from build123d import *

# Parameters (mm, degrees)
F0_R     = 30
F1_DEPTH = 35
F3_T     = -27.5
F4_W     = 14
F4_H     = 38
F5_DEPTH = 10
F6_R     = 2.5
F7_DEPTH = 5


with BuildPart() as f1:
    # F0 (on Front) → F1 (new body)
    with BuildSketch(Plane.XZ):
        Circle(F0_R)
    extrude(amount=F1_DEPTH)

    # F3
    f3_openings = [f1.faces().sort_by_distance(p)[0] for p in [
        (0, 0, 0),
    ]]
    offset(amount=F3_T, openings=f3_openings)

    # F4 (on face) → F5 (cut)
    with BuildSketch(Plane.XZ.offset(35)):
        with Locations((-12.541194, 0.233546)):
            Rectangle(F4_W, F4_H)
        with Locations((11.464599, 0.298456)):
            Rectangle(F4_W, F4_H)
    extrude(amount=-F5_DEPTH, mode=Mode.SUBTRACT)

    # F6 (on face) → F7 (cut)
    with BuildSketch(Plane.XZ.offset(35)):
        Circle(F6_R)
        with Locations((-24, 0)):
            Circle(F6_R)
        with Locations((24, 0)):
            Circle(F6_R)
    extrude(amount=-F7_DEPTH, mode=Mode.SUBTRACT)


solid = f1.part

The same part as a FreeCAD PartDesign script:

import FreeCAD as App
import Part
import Sketcher

V = App.Vector
Q = App.Units.Quantity


def faces_at(feature, points):
    """Names of the faces that lie closest to the given points."""
    faces = feature.Shape.Faces
    near = lambda p: min(range(len(faces)), key=lambda i: faces[i].distToShape(Part.Vertex(*p))[0])
    return sorted({f"Face{near(p) + 1}" for p in points})

doc = App.newDocument("Part")
body = doc.addObject("PartDesign::Body", "Body")

# Sketch on XZ plane
sketch1 = body.newObject("Sketcher::SketchObject", "Sketch")
sketch1.AttachmentSupport = (doc.getObject("XZ_Plane"), [""])
sketch1.MapMode = "FlatFace"
sketch1.addGeometry(Part.Circle(V(0, 0, 0), V(0, 0, 1), 30), False)
sketch1.addConstraint([
    Sketcher.Constraint("Coincident", 0, 3, -1, 1),
    Sketcher.Constraint("Diameter", 0, Q("60 mm")),
])
pad1 = body.newObject("PartDesign::Pad", "Pad")
pad1.Profile = sketch1
pad1.Length = 35
doc.recompute()

thickness = body.newObject("PartDesign::Thickness", "Thickness")
thickness.Base = (pad1, faces_at(pad1, [(0, 0, 0)]))
thickness.Value = 27.5
thickness.Reversed = True
thickness.Join = "Arc"

# Sketch on XZ plane
sketch2 = body.newObject("Sketcher::SketchObject", "Sketch001")
sketch2.AttachmentSupport = (doc.getObject("XZ_Plane"), [""])
sketch2.MapMode = "FlatFace"
sketch2.AttachmentOffset = App.Placement(V(0, 0, 35), App.Rotation())
sketch2.addGeometry([
    Part.LineSegment(V(-20, 19, 0), V(-20, -19, 0)),  # 0
    Part.LineSegment(V(-20, -19, 0), V(-6, -19, 0)),  # 1
    Part.LineSegment(V(-6, -19, 0), V(-6, 19, 0)),  # 2
    Part.LineSegment(V(-6, 19, 0), V(-20, 19, 0)),  # 3
    Part.LineSegment(V(4, 19, 0), V(4, -19, 0)),  # 4
    Part.LineSegment(V(4, -19, 0), V(18, -19, 0)),  # 5
    Part.LineSegment(V(18, -19, 0), V(18, 19, 0)),  # 6
    Part.LineSegment(V(18, 19, 0), V(4, 19, 0)),  # 7
], False)
sketch2.addConstraint([
    Sketcher.Constraint("Coincident", 0, 2, 1, 1),
    Sketcher.Constraint("Coincident", 1, 2, 2, 1),
    Sketcher.Constraint("Coincident", 2, 2, 3, 1),
    Sketcher.Constraint("Coincident", 3, 2, 0, 1),
    Sketcher.Constraint("Coincident", 4, 2, 5, 1),
    Sketcher.Constraint("Coincident", 5, 2, 6, 1),
    Sketcher.Constraint("Coincident", 6, 2, 7, 1),
    Sketcher.Constraint("Coincident", 7, 2, 4, 1),
    Sketcher.Constraint("Vertical", 0),
    Sketcher.Constraint("Horizontal", 1),
    Sketcher.Constraint("Vertical", 2),
    Sketcher.Constraint("Horizontal", 3),
    Sketcher.Constraint("Vertical", 4),
    Sketcher.Constraint("Horizontal", 5),
    Sketcher.Constraint("Vertical", 6),
    Sketcher.Constraint("Horizontal", 7),
    Sketcher.Constraint("Equal", 3, 5),
    Sketcher.Constraint("Equal", 2, 4),
    Sketcher.Constraint("DistanceX", 1, 1, 1, 2, Q("14 mm")),
    Sketcher.Constraint("DistanceY", 0, 2, 0, 1, Q("38 mm")),
    Sketcher.Constraint("DistanceX", -1, 1, 4, 2, Q("4.464599 mm")),
    Sketcher.Constraint("DistanceY", 1, 2, 4, 2, Q("0.06491 mm")),
    Sketcher.Constraint("DistanceX", 0, 2, -1, 1, Q("19.541194 mm")),
    Sketcher.Constraint("DistanceY", 0, 2, -1, 1, Q("18.766454 mm")),
])
pocket1 = body.newObject("PartDesign::Pocket", "Pocket")
pocket1.Profile = sketch2
pocket1.Length = 10

# Sketch on XZ plane
sketch3 = body.newObject("Sketcher::SketchObject", "Sketch002")
sketch3.AttachmentSupport = (doc.getObject("XZ_Plane"), [""])
sketch3.MapMode = "FlatFace"
sketch3.AttachmentOffset = App.Placement(V(0, 0, 35), App.Rotation())
sketch3.addGeometry([
    Part.Circle(V(0, 0, 0), V(0, 0, 1), 2.5),
    Part.Circle(V(-24, 0, 0), V(0, 0, 1), 2.5),
    Part.Circle(V(24, 0, 0), V(0, 0, 1), 2.5),
], False)
sketch3.addConstraint([
    Sketcher.Constraint("Coincident", 0, 3, -1, 1),
    Sketcher.Constraint("Equal", 0, 1),
    Sketcher.Constraint("Equal", 1, 2),
    Sketcher.Constraint("Symmetric", 1, 3, 2, 3, -1, 1),
    Sketcher.Constraint("PointOnObject", 1, 3, -1),
    Sketcher.Constraint("Diameter", 0, Q("5 mm")),
    Sketcher.Constraint("DistanceX", 1, 3, -1, 1, Q("24 mm")),
])
pocket2 = body.newObject("PartDesign::Pocket", "Pocket001")
pocket2.Profile = sketch3
pocket2.Length = 5

doc.recompute()
